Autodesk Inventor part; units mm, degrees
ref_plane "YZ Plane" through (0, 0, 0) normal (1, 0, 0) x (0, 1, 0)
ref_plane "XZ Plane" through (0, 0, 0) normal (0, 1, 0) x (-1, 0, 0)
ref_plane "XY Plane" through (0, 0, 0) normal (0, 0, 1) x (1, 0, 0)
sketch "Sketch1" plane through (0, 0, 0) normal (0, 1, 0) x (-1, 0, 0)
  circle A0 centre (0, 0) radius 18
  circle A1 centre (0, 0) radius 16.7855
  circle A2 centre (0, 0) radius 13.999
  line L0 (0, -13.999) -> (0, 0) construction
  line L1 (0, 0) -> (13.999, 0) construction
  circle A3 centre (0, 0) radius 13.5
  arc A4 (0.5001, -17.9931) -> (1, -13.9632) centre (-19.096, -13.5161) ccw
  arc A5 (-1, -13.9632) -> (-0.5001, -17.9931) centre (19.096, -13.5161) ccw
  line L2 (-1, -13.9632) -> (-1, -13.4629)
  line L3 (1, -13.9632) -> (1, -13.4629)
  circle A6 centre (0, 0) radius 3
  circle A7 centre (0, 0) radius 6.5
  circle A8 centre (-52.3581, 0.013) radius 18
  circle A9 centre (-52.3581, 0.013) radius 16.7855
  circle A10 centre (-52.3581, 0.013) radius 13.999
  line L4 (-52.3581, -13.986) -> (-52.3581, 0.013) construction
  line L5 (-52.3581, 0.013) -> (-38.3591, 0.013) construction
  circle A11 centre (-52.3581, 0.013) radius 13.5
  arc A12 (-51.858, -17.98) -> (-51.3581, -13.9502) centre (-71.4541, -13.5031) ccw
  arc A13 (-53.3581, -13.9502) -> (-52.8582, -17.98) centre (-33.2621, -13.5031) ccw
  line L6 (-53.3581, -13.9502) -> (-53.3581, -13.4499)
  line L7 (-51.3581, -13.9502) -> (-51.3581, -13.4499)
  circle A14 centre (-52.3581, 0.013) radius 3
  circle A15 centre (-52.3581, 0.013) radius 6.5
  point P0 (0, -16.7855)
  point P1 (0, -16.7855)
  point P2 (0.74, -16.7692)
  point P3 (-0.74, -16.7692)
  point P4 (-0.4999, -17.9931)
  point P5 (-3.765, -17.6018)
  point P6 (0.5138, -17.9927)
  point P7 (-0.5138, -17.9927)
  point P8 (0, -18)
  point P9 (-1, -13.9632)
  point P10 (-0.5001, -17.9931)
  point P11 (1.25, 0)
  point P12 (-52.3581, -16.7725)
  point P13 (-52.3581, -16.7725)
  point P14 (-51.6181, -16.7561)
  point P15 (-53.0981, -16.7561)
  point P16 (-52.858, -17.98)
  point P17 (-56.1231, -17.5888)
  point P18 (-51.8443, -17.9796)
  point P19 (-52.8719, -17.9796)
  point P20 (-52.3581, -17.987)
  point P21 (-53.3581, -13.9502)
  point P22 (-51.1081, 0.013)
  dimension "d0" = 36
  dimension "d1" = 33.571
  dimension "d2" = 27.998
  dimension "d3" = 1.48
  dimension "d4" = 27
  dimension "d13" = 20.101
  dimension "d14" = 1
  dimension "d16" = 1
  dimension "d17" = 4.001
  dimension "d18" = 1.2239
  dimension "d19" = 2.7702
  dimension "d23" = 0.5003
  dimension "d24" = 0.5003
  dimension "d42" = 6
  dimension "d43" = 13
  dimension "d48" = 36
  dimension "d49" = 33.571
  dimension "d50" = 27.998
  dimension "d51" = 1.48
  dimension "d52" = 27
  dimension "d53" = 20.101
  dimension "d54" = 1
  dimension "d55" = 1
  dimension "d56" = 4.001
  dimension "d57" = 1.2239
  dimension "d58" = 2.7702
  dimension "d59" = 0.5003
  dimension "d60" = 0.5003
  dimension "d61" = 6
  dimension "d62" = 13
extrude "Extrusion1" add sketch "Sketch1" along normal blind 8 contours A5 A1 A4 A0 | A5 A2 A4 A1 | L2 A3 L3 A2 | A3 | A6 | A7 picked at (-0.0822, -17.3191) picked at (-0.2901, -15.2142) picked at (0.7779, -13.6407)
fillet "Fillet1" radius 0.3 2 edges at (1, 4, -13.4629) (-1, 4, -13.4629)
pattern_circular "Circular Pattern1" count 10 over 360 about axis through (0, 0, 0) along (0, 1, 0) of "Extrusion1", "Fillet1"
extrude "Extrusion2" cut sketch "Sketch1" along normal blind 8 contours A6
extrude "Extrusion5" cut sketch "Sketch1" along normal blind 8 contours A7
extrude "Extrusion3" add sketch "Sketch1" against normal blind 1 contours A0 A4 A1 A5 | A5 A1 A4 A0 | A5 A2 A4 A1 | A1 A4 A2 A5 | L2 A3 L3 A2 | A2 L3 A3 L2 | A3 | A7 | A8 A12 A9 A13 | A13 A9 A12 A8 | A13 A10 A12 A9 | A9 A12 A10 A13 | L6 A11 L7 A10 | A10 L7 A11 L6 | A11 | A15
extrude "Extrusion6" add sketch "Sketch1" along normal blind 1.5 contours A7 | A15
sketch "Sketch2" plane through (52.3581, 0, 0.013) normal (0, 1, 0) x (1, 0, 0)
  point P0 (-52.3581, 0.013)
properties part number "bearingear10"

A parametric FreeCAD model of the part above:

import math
import FreeCAD as App
import Part
import Sketcher
from FreeCAD import Vector


def edges_at(feature, points):
    """Names of the edges that pass closest to the given points."""
    edges = feature.Shape.Edges
    near = lambda p: min(range(len(edges)), key=lambda i: edges[i].distToShape(Part.Vertex(*p))[0])
    return sorted({f"Edge{near(p) + 1}" for p in points})

doc = App.newDocument("Part")
params = doc.addObject("Spreadsheet::Sheet", "Params")
for row, (alias, value) in enumerate([
    ("sketch1_radius", "18 mm"),
    ("sketch1_radius2", "13.5 mm"),
    ("pad1_length", "8 mm"),
    ("fillet_radius", "0.3 mm"),
    ("sketch2_diameter", "6 mm"),
    ("pocket1_length", "8 mm"),
    ("sketch3_diameter", "13 mm"),
    ("sketch3_diameter2", "6 mm"),
    ("pocket2_length", "8 mm"),
    ("sketch4_diameter", "36 mm"),
    ("sketch4_diameter2", "6 mm"),
    ("pad2_length", "1 mm"),
    ("sketch5_diameter", "13 mm"),
    ("sketch5_diameter2", "6 mm"),
    ("pad3_length", "1.5 mm"),
], start=1):
    params.set(f"A{row}", alias)
    params.set(f"B{row}", "=" + value)
    params.setAlias(f"B{row}", alias)

body = doc.addObject("PartDesign::Body", "Body")
body.AllowCompound = True

# Sketch on XZ plane
sketch1 = doc.addObject("Sketcher::SketchObject", "Sketch")
body.addObject(sketch1)
sketch1.AttachmentSupport = (doc.XZ_Plane, [""])
sketch1.MapMode = "FlatFace"
sketch1.addGeometry([
    Part.ArcOfCircle(Part.Circle(Vector(0, 0, 0), Vector(0, 0, 1), 18), math.radians(-91.592068), math.radians(-88.407932)),  # 0
    Part.ArcOfCircle(Part.Circle(Vector(19.092284, -13.516753, 0), Vector(0, 0, 1), 20.097244), math.radians(-178.727108), math.radians(-167.130314)),  # 1
    Part.LineSegment(Vector(-1, -13.9632, 0), Vector(-1, -13.4629, 0)),  # 2
    Part.ArcOfCircle(Part.Circle(Vector(0, 0, 0), Vector(0, 0, 1), 13.5), math.radians(-85.751974), math.radians(265.751974)),  # 3
    Part.LineSegment(Vector(1, -13.4629, 0), Vector(1, -13.9632, 0)),  # 4
    Part.ArcOfCircle(Part.Circle(Vector(-19.099764, -13.515825, 0), Vector(0, 0, 1), 20.104742), math.radians(-12.867516), math.radians(-1.275062)),  # 5
], False)
sketch1.addConstraint([
    Sketcher.Constraint("Coincident", 0, 1, 1, 2),
    Sketcher.Constraint("Coincident", 1, 1, 2, 1),
    Sketcher.Constraint("Coincident", 2, 2, 3, 2),
    Sketcher.Constraint("Coincident", 3, 1, 4, 1),
    Sketcher.Constraint("Coincident", 4, 2, 5, 2),
    Sketcher.Constraint("Coincident", 5, 1, 0, 2),
    Sketcher.Constraint("Vertical", 2),
    Sketcher.Constraint("Vertical", 4),
    Sketcher.Constraint("Coincident", 0, 3, -1, 1),
    Sketcher.Constraint("Coincident", 3, 3, -1, 1),
    Sketcher.Constraint("Symmetric", 1, 1, 4, 2, -2),
    Sketcher.Constraint("Radius", 0, 18.0),
    Sketcher.Constraint("Radius", 3, 13.5),
    Sketcher.Constraint("DistanceX", 1, 1, -1, 1, 1.0),
    Sketcher.Constraint("DistanceX", 0, 1, -1, 1, 0.5),
    Sketcher.Constraint("DistanceX", -1, 1, 5, 1, 0.5),
    Sketcher.Constraint("DistanceY", 2, 1, 2, 2, 0.5003),
    Sketcher.Constraint("Radius", 1, 20.0972),
    Sketcher.Constraint("Radius", 5, 20.1047),
])
sketch1.setExpression("Constraints[11]", "Params.sketch1_radius")
sketch1.setExpression("Constraints[12]", "Params.sketch1_radius2")
pad1 = doc.addObject("PartDesign::Pad", "Pad")
body.addObject(pad1)
pad1.Profile = sketch1
pad1.setExpression("Length", "Params.pad1_length")
pad1.Reversed = True
doc.recompute()

fillet = doc.addObject("PartDesign::Fillet", "Fillet")
body.addObject(fillet)
fillet.Base = (pad1, edges_at(pad1, [(1, 4, -13.463), (-1, 4, -13.463)]))
fillet.setExpression("Radius", "Params.fillet_radius")
doc.recompute()

polarpattern = doc.addObject("PartDesign::PolarPattern", "PolarPattern")
body.addObject(polarpattern)
polarpattern.Originals = [pad1, fillet]
polarpattern.Axis = (doc.Y_Axis, [""])
polarpattern.Angle = 360
polarpattern.Occurrences = 10
body.Tip = polarpattern

# Sketch on XZ plane
sketch2 = doc.addObject("Sketcher::SketchObject", "Sketch001")
body.addObject(sketch2)
sketch2.AttachmentSupport = (doc.XZ_Plane, [""])
sketch2.MapMode = "FlatFace"
sketch2.addGeometry(Part.Circle(Vector(0, 0, 0), Vector(0, 0, 1), 3), False)
sketch2.addConstraint([
    Sketcher.Constraint("Coincident", 0, 3, -1, 1),
    Sketcher.Constraint("Diameter", 0, 6.0),
])
sketch2.setExpression("Constraints[1]", "Params.sketch2_diameter")
pocket1 = doc.addObject("PartDesign::Pocket", "Pocket")
body.addObject(pocket1)
pocket1.Profile = sketch2
pocket1.setExpression("Length", "Params.pocket1_length")

# Sketch on XZ plane
sketch3 = doc.addObject("Sketcher::SketchObject", "Sketch002")
body.addObject(sketch3)
sketch3.AttachmentSupport = (doc.XZ_Plane, [""])
sketch3.MapMode = "FlatFace"
sketch3.addGeometry([
    Part.Circle(Vector(0, 0, 0), Vector(0, 0, 1), 6.5),
    Part.Circle(Vector(0, 0, 0), Vector(0, 0, 1), 3),
], False)
sketch3.addConstraint([
    Sketcher.Constraint("Coincident", 0, 3, -1, 1),
    Sketcher.Constraint("Coincident", 1, 3, -1, 1),
    Sketcher.Constraint("Diameter", 0, 13.0),
    Sketcher.Constraint("Diameter", 1, 6.0),
])
sketch3.setExpression("Constraints[2]", "Params.sketch3_diameter")
sketch3.setExpression("Constraints[3]", "Params.sketch3_diameter2")
pocket2 = doc.addObject("PartDesign::Pocket", "Pocket001")
body.addObject(pocket2)
pocket2.Profile = sketch3
pocket2.setExpression("Length", "Params.pocket2_length")

# Sketch on XZ plane
sketch4 = doc.addObject("Sketcher::SketchObject", "Sketch003")
body.addObject(sketch4)
sketch4.AttachmentSupport = (doc.XZ_Plane, [""])
sketch4.MapMode = "FlatFace"
sketch4.addGeometry([
    Part.Circle(Vector(0, 0, 0), Vector(0, 0, 1), 18),
    Part.Circle(Vector(0, 0, 0), Vector(0, 0, 1), 3),
    Part.Circle(Vector(52.3581, 0.013, 0), Vector(0, 0, 1), 18),
    Part.Circle(Vector(52.3581, 0.013, 0), Vector(0, 0, 1), 3),
], False)
sketch4.addConstraint([
    Sketcher.Constraint("Coincident", 0, 3, -1, 1),
    Sketcher.Constraint("Coincident", 1, 3, -1, 1),
    Sketcher.Constraint("Coincident", 3, 3, 2, 3),
    Sketcher.Constraint("Equal", 0, 2),
    Sketcher.Constraint("Equal", 1, 3),
    Sketcher.Constraint("Diameter", 0, 36.0),
    Sketcher.Constraint("Diameter", 1, 6.0),
    Sketcher.Constraint("DistanceX", -1, 1, 2, 3, 52.358),
    Sketcher.Constraint("DistanceY", -1, 1, 2, 3, 0.013),
])
sketch4.setExpression("Constraints[5]", "Params.sketch4_diameter")
sketch4.setExpression("Constraints[6]", "Params.sketch4_diameter2")
pad2 = doc.addObject("PartDesign::Pad", "Pad001")
body.addObject(pad2)
pad2.Profile = sketch4
pad2.setExpression("Length", "Params.pad2_length")

# Sketch on XZ plane
sketch5 = doc.addObject("Sketcher::SketchObject", "Sketch004")
body.addObject(sketch5)
sketch5.AttachmentSupport = (doc.XZ_Plane, [""])
sketch5.MapMode = "FlatFace"
sketch5.addGeometry([
    Part.Circle(Vector(0, 0, 0), Vector(0, 0, 1), 6.5),
    Part.Circle(Vector(0, 0, 0), Vector(0, 0, 1), 3),
    Part.Circle(Vector(52.3581, 0.013, 0), Vector(0, 0, 1), 6.5),
    Part.Circle(Vector(52.3581, 0.013, 0), Vector(0, 0, 1), 3),
], False)
sketch5.addConstraint([
    Sketcher.Constraint("Coincident", 0, 3, -1, 1),
    Sketcher.Constraint("Coincident", 1, 3, -1, 1),
    Sketcher.Constraint("Coincident", 3, 3, 2, 3),
    Sketcher.Constraint("Equal", 0, 2),
    Sketcher.Constraint("Equal", 1, 3),
    Sketcher.Constraint("Diameter", 0, 13.0),
    Sketcher.Constraint("Diameter", 1, 6.0),
    Sketcher.Constraint("DistanceX", -1, 1, 2, 3, 52.358),
    Sketcher.Constraint("DistanceY", -1, 1, 2, 3, 0.013),
])
sketch5.setExpression("Constraints[5]", "Params.sketch5_diameter")
sketch5.setExpression("Constraints[6]", "Params.sketch5_diameter2")
pad3 = doc.addObject("PartDesign::Pad", "Pad002")
body.addObject(pad3)
pad3.Profile = sketch5
pad3.setExpression("Length", "Params.pad3_length")
pad3.Reversed = True

doc.recompute()
